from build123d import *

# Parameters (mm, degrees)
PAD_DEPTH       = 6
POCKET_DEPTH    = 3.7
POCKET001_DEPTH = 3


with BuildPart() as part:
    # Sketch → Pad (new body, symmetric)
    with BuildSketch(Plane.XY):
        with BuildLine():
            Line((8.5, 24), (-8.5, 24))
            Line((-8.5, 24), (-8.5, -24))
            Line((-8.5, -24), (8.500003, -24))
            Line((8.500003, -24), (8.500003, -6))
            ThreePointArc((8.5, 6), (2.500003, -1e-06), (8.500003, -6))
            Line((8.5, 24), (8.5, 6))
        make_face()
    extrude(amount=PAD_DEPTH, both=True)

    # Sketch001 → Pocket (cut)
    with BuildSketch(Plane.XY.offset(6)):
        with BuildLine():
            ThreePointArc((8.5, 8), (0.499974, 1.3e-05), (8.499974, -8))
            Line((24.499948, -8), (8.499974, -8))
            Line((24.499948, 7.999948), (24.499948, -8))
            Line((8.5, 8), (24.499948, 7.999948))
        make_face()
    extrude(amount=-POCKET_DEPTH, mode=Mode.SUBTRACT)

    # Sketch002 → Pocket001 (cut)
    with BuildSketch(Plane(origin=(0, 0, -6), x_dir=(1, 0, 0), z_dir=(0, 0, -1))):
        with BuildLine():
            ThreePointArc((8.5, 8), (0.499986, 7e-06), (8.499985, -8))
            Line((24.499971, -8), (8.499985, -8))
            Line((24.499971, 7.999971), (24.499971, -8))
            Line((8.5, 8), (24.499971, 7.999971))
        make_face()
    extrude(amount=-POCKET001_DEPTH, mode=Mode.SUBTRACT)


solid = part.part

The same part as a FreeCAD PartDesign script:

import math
import FreeCAD as App
import Part
import Sketcher

doc = App.newDocument("Part")
body = doc.addObject("PartDesign::Body", "Body")

# Sketch on XY plane
sketch1 = body.newObject("Sketcher::SketchObject", "Sketch")
sketch1.AttachmentSupport = (doc.getObject("XY_Plane"), [""])
sketch1.MapMode = "FlatFace"
sketch1.addGeometry([
    Part.LineSegment(App.Vector(8, 24, 0), App.Vector(-8, 24, 0)),  # 0
    Part.LineSegment(App.Vector(-8, 24, 0), App.Vector(-8, -24, 0)),  # 1
    Part.LineSegment(App.Vector(-8, -24, 0), App.Vector(9, -24, 0)),  # 2
    Part.LineSegment(App.Vector(9, -24, 0), App.Vector(9, -6, 0)),  # 3
    Part.ArcOfCircle(Part.Circle(App.Vector(9, 0, 0), App.Vector(0, 0, 1), 6), math.radians(90), math.radians(270)),  # 4
    Part.LineSegment(App.Vector(8, 6, 0), App.Vector(8, 24, 0)),  # 5
], False)
sketch1.addConstraint([
    Sketcher.Constraint("Coincident", 0, 2, 1, 1),
    Sketcher.Constraint("Coincident", 1, 2, 2, 1),
    Sketcher.Constraint("Coincident", 2, 2, 3, 1),
    Sketcher.Constraint("Coincident", 3, 2, 4, 2),
    Sketcher.Constraint("Coincident", 4, 1, 5, 1),
    Sketcher.Constraint("Coincident", 5, 2, 0, 1),
    Sketcher.Constraint("Horizontal", 0),
    Sketcher.Constraint("Vertical", 1),
    Sketcher.Constraint("Horizontal", 2),
    Sketcher.Constraint("Vertical", 3),
    Sketcher.Constraint("Vertical", 5),
    Sketcher.Constraint("Symmetric", 0, 2, 2, 2, -1, 1),
    Sketcher.Constraint("Symmetric", 3, 2, 4, 1, -1),
    Sketcher.Constraint("Vertical", 4, 3, 2, 2),
    Sketcher.Constraint("Radius", 4, 6.0),
    Sketcher.Constraint("DistanceX", 0, 2, 0, 1, 17.0),
    Sketcher.Constraint("DistanceY", 1, 2, 1, 1, 48.0),
])
pad1 = body.newObject("PartDesign::Pad", "Pad")
pad1.Profile = sketch1
pad1.Length = 12
pad1.Midplane = True

# Sketch on XY plane
sketch2 = body.newObject("Sketcher::SketchObject", "Sketch001")
sketch2.AttachmentSupport = (doc.getObject("XY_Plane"), [""])
sketch2.MapMode = "FlatFace"
sketch2.AttachmentOffset = App.Placement(App.Vector(0, 0, 6), App.Rotation())
sketch2.addGeometry([
    Part.ArcOfCircle(Part.Circle(App.Vector(8, 0, 0), App.Vector(0, 0, 1), 8), math.radians(90), math.radians(270)),
    Part.LineSegment(App.Vector(8, -8, 0), App.Vector(24, -8, 0)),
    Part.LineSegment(App.Vector(24, -8, 0), App.Vector(24, 8, 0)),
    Part.LineSegment(App.Vector(24, 8, 0), App.Vector(8, 8, 0)),
], False)
sketch2.addConstraint([
    Sketcher.Constraint("Tangent", 0, 2, 1, 1),
    Sketcher.Constraint("Coincident", 1, 2, 2, 1),
    Sketcher.Constraint("Coincident", 2, 2, 3, 1),
    Sketcher.Constraint("Tangent", 3, 2, 0, 1),
    Sketcher.Constraint("Horizontal", 1),
    Sketcher.Constraint("Vertical", 2),
    Sketcher.Constraint("PointOnObject", 0, 3, -1),
    Sketcher.Constraint("Radius", 0, 8.0),
    Sketcher.Constraint("DistanceX", -1, 1, 3, 2, 8.5),
    Sketcher.Constraint("Distance", 3, 15.999948),
    Sketcher.Constraint("DistanceX", 1, 1, 1, 2, 15.999974),
])
pocket1 = body.newObject("PartDesign::Pocket", "Pocket")
pocket1.Profile = sketch2
pocket1.Length = 3.7

# Sketch on XY plane
sketch3 = body.newObject("Sketcher::SketchObject", "Sketch002")
sketch3.AttachmentSupport = (doc.getObject("XY_Plane"), [""])
sketch3.MapMode = "FlatFace"
sketch3.AttachmentOffset = App.Placement(App.Vector(0, 0, -6), App.Rotation())
sketch3.addGeometry([
    Part.ArcOfCircle(Part.Circle(App.Vector(8, 0, 0), App.Vector(0, 0, 1), 8), math.radians(90), math.radians(270)),
    Part.LineSegment(App.Vector(8, 8, 0), App.Vector(24, 8, 0)),
    Part.LineSegment(App.Vector(24, 8, 0), App.Vector(24, -8, 0)),
    Part.LineSegment(App.Vector(24, -8, 0), App.Vector(8, -8, 0)),
], False)
sketch3.addConstraint([
    Sketcher.Constraint("Tangent", 0, 1, 1, 1),
    Sketcher.Constraint("Coincident", 1, 2, 2, 1),
    Sketcher.Constraint("Coincident", 2, 2, 3, 1),
    Sketcher.Constraint("Tangent", 3, 2, 0, 2),
    Sketcher.Constraint("Horizontal", 1),
    Sketcher.Constraint("Vertical", 2),
    Sketcher.Constraint("PointOnObject", 0, 3, -1),
    Sketcher.Constraint("Radius", 0, 8.0),
    Sketcher.Constraint("DistanceX", -1, 1, 3, 2, 8.5),
    Sketcher.Constraint("DistanceY", 2, 2, 2, 1, 15.999971),
    Sketcher.Constraint("Distance", 3, 15.999971),
])
pocket2 = body.newObject("PartDesign::Pocket", "Pocket001")
pocket2.Profile = sketch3
pocket2.Length = 3
pocket2.Reversed = True

doc.recompute()
